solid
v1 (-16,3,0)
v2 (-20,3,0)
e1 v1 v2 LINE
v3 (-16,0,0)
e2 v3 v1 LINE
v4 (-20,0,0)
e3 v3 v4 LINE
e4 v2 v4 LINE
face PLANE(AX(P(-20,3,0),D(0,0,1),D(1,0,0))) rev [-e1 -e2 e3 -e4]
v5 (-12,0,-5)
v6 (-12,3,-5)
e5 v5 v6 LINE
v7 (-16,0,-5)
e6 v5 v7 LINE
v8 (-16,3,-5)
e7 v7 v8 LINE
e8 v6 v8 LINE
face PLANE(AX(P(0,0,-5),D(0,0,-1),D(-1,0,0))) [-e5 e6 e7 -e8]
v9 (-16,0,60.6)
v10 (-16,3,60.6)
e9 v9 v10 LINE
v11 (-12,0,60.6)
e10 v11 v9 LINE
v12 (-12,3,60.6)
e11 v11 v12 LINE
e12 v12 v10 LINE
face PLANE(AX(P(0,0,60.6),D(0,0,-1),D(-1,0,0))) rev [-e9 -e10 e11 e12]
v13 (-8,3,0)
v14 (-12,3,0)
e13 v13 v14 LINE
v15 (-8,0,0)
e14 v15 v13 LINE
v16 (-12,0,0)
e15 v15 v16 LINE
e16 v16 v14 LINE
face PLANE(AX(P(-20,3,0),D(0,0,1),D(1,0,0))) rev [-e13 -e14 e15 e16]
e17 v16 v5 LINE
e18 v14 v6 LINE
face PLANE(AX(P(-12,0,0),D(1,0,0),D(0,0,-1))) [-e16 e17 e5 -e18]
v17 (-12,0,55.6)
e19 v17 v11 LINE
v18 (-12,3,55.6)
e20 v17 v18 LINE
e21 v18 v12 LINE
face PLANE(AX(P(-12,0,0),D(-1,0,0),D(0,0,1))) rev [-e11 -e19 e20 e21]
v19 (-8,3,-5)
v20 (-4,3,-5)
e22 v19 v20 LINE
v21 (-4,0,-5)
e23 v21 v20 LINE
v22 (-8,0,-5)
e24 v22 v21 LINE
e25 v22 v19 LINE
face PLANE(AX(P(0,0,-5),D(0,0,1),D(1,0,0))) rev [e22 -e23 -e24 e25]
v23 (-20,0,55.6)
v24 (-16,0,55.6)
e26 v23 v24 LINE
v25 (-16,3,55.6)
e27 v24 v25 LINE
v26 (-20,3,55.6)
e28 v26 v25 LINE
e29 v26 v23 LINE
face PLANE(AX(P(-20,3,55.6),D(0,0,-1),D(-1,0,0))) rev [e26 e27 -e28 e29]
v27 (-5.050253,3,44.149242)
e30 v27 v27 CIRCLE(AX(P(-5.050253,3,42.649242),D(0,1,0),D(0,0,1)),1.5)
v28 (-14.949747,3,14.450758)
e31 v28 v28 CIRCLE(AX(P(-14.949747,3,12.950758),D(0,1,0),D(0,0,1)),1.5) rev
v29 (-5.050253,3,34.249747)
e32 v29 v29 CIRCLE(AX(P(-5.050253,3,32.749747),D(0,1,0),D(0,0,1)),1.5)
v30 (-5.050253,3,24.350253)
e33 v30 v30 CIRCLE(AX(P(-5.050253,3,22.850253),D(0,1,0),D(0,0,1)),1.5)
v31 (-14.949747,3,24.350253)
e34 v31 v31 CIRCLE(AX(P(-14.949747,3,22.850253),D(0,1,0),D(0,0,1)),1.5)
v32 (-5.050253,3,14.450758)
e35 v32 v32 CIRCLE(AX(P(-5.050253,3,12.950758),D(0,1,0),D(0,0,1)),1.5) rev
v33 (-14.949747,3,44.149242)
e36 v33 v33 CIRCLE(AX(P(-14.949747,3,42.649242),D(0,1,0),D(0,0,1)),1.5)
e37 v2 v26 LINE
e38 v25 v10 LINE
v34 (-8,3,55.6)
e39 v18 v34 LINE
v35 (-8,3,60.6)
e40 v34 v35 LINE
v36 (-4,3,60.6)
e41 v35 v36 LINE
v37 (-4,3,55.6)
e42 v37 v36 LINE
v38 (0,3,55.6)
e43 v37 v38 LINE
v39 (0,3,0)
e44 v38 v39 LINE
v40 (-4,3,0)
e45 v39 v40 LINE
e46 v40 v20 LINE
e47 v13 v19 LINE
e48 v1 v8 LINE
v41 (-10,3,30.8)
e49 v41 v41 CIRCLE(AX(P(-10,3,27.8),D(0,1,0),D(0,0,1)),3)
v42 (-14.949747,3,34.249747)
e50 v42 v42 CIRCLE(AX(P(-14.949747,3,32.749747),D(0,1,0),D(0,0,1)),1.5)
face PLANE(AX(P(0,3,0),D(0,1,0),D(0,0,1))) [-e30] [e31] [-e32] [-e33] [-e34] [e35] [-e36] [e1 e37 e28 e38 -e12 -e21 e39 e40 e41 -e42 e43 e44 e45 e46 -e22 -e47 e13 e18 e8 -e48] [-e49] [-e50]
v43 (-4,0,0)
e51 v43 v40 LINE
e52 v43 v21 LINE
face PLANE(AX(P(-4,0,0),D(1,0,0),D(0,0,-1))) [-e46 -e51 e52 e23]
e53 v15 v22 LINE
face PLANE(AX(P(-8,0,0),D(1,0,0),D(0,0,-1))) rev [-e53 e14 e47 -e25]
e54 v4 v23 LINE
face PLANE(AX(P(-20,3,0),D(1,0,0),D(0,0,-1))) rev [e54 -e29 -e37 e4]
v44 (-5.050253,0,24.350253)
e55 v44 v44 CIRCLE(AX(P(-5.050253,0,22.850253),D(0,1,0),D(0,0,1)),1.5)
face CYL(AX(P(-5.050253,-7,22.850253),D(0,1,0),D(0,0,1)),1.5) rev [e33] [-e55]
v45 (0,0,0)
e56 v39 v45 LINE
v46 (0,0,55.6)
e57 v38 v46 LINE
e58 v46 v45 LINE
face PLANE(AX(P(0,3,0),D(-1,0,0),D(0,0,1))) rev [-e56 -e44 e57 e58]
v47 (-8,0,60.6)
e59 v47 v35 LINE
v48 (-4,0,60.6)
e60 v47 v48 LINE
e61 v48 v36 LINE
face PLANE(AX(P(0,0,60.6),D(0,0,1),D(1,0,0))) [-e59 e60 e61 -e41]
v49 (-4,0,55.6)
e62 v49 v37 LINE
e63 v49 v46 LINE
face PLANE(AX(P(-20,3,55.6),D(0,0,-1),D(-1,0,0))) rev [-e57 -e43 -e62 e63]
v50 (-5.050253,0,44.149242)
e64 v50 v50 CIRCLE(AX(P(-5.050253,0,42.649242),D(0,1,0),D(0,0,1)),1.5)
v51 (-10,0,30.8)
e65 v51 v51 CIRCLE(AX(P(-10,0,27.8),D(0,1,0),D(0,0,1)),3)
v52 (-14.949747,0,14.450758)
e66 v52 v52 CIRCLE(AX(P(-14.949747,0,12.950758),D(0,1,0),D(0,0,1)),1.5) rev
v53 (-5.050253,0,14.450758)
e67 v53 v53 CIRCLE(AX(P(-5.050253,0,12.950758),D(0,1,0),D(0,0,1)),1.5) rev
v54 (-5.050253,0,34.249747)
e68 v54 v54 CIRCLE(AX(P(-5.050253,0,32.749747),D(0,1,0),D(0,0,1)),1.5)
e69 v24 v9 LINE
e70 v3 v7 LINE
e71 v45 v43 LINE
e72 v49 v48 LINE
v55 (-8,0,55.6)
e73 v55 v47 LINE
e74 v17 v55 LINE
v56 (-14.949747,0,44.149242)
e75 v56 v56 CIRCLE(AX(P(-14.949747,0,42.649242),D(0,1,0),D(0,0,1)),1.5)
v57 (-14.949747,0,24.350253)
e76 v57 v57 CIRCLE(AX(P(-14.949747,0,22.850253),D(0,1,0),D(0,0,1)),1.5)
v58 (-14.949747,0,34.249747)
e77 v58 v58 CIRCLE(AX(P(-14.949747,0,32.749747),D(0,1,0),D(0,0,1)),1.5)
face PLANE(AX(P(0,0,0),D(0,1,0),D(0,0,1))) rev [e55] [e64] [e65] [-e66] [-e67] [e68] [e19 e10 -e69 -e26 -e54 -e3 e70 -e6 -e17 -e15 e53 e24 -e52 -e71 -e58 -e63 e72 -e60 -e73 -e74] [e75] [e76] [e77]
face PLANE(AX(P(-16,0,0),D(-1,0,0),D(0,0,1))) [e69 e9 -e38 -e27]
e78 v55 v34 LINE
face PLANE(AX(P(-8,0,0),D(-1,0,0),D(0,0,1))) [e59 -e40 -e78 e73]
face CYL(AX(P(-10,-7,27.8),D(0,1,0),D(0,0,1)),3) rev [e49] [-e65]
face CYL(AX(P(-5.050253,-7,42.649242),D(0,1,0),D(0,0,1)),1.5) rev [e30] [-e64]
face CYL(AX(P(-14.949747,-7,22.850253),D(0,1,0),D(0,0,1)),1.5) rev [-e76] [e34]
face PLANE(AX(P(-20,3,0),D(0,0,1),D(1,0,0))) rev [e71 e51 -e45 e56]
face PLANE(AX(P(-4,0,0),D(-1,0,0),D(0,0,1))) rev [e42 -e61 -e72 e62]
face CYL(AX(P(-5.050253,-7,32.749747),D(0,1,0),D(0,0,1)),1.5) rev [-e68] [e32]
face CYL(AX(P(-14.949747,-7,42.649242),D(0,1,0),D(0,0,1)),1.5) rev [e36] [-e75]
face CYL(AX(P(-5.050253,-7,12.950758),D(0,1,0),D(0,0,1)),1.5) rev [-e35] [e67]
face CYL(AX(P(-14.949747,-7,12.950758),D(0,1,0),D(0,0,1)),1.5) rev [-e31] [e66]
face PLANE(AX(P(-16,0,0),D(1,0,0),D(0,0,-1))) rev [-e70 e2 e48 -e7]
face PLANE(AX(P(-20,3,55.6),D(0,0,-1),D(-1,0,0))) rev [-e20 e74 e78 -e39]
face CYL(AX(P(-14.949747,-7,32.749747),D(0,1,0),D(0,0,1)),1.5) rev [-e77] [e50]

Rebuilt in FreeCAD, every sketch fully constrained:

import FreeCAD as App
import Part
import Sketcher


def add_polygon(sketch, points):
    """Adds a closed chain of lines whose ends are joined by coincident constraints."""
    first, n = sketch.GeometryCount, len(points)
    for a, b in zip(points, points[1:] + points[:1]):
        sketch.addGeometry(Part.LineSegment(App.Vector(*a, 0), App.Vector(*b, 0)), False)
    for i in range(n):
        sketch.addConstraint(Sketcher.Constraint("Coincident", first + i, 2, first + (i + 1) % n, 1))

doc = App.newDocument("Part")
body = doc.addObject("PartDesign::Body", "Body")

# Sketch on XZ plane
sketch1 = body.newObject("Sketcher::SketchObject", "Sketch")
sketch1.AttachmentSupport = (doc.getObject("XZ_Plane"), [""])
sketch1.MapMode = "FlatFace"
add_polygon(sketch1, [(-20, 0), (-20, 56), (0, 56), (0, 0)])  # lines 0-3
sketch1.addConstraint(Sketcher.Constraint("Vertical", 0))
sketch1.addConstraint(Sketcher.Constraint("Horizontal", 1))
sketch1.addConstraint(Sketcher.Constraint("Vertical", 2))
sketch1.addConstraint(Sketcher.Constraint("Horizontal", 3))
sketch1.addConstraint(Sketcher.Constraint("Coincident", 2, 2, -1, 1))
sketch1.addConstraint(Sketcher.Constraint("DistanceX", 1, 1, 1, 2, 20.0))
sketch1.addConstraint(Sketcher.Constraint("DistanceY", 0, 1, 0, 2, 55.6))
pad1 = body.newObject("PartDesign::Pad", "Pad")
pad1.Profile = sketch1
pad1.Length = 3
pad1.Reversed = True

# Sketch on XZ plane
sketch2 = body.newObject("Sketcher::SketchObject", "Sketch001")
sketch2.AttachmentSupport = (doc.getObject("XZ_Plane"), [""])
sketch2.MapMode = "FlatFace"
sketch2.AttachmentOffset = App.Placement(App.Vector(0, 0, -3), App.Rotation())
add_polygon(sketch2, [(-16, -5), (-16, 0), (-12, 0), (-12, -5)])  # lines 0-3
add_polygon(sketch2, [(-8, -5), (-8, 0), (-4, 0), (-4, -5)])  # lines 4-7
add_polygon(sketch2, [(-16, 55.6), (-16, 60.6), (-12, 60.6), (-12, 55.6)])  # lines 8-11
add_polygon(sketch2, [(-8, 55.6), (-8, 60.6), (-4, 60.6), (-4, 55.6)])  # lines 12-15
sketch2.addConstraint(Sketcher.Constraint("Vertical", 0))
sketch2.addConstraint(Sketcher.Constraint("Horizontal", 1))
sketch2.addConstraint(Sketcher.Constraint("Vertical", 2))
sketch2.addConstraint(Sketcher.Constraint("Horizontal", 3))
sketch2.addConstraint(Sketcher.Constraint("Vertical", 4))
sketch2.addConstraint(Sketcher.Constraint("Horizontal", 5))
sketch2.addConstraint(Sketcher.Constraint("Vertical", 6))
sketch2.addConstraint(Sketcher.Constraint("Horizontal", 7))
sketch2.addConstraint(Sketcher.Constraint("Vertical", 8))
sketch2.addConstraint(Sketcher.Constraint("Horizontal", 9))
sketch2.addConstraint(Sketcher.Constraint("Vertical", 10))
sketch2.addConstraint(Sketcher.Constraint("Horizontal", 11))
sketch2.addConstraint(Sketcher.Constraint("Vertical", 12))
sketch2.addConstraint(Sketcher.Constraint("Horizontal", 13))
sketch2.addConstraint(Sketcher.Constraint("Vertical", 14))
sketch2.addConstraint(Sketcher.Constraint("Horizontal", 15))
sketch2.addConstraint(Sketcher.Constraint("PointOnObject", 0, 2, -1))
sketch2.addConstraint(Sketcher.Constraint("PointOnObject", 4, 2, -1))
sketch2.addConstraint(Sketcher.Constraint("Horizontal", 3, 2, 6, 2))
sketch2.addConstraint(Sketcher.Constraint("Horizontal", 9, 2, 12, 2))
sketch2.addConstraint(Sketcher.Constraint("Horizontal", 11, 2, 14, 2))
sketch2.addConstraint(Sketcher.Constraint("Vertical", 3, 2, 8, 2))
sketch2.addConstraint(Sketcher.Constraint("Vertical", 2, 2, 9, 2))
sketch2.addConstraint(Sketcher.Constraint("Vertical", 7, 2, 12, 2))
sketch2.addConstraint(Sketcher.Constraint("Vertical", 6, 2, 13, 2))
sketch2.addConstraint(Sketcher.Constraint("Equal", 3, 5))
sketch2.addConstraint(Sketcher.Constraint("Equal", 6, 8))
sketch2.addConstraint(Sketcher.Constraint("DistanceX", 1, 1, 1, 2, 4.0))
sketch2.addConstraint(Sketcher.Constraint("DistanceY", 0, 1, 0, 2, 5.0))
sketch2.addConstraint(Sketcher.Constraint("DistanceX", 0, 2, -1, 1, 16.0))
sketch2.addConstraint(Sketcher.Constraint("DistanceX", 4, 2, -1, 1, 8.0))
sketch2.addConstraint(Sketcher.Constraint("DistanceY", -1, 1, 8, 2, 60.6))
pad2 = body.newObject("PartDesign::Pad", "Pad001")
pad2.Profile = sketch2
pad2.Length = 3

# Sketch on XZ plane
sketch3 = body.newObject("Sketcher::SketchObject", "Sketch002")
sketch3.AttachmentSupport = (doc.getObject("XZ_Plane"), [""])
sketch3.MapMode = "FlatFace"
sketch3.AttachmentOffset = App.Placement(App.Vector(0, 0, -3), App.Rotation())
sketch3.addGeometry(Part.Circle(App.Vector(-5.1, 22.9, 0), App.Vector(0, 0, 1), 1.5), False)
sketch3.addGeometry(Part.Circle(App.Vector(-10, 27.8, 0), App.Vector(0, 0, 1), 3), False)
sketch3.addGeometry(Part.Circle(App.Vector(-14.9, 32.7, 0), App.Vector(0, 0, 1), 1.5), False)
sketch3.addGeometry(Part.Circle(App.Vector(-5.1, 32.7, 0), App.Vector(0, 0, 1), 1.5), False)
sketch3.addGeometry(Part.Circle(App.Vector(-14.9, 22.9, 0), App.Vector(0, 0, 1), 1.5), False)
sketch3.addGeometry(Part.Circle(App.Vector(-14.9, 13, 0), App.Vector(0, 0, 1), 1.5), False)
sketch3.addGeometry(Part.Circle(App.Vector(-5.1, 13, 0), App.Vector(0, 0, 1), 1.5), False)
sketch3.addGeometry(Part.Circle(App.Vector(-14.9, 42.6, 0), App.Vector(0, 0, 1), 1.5), False)
sketch3.addGeometry(Part.Circle(App.Vector(-5.1, 42.6, 0), App.Vector(0, 0, 1), 1.5), False)
sketch3.addConstraint(Sketcher.Constraint("Equal", 0, 2))
sketch3.addConstraint(Sketcher.Constraint("Equal", 2, 3))
sketch3.addConstraint(Sketcher.Constraint("Equal", 3, 4))
sketch3.addConstraint(Sketcher.Constraint("Equal", 4, 5))
sketch3.addConstraint(Sketcher.Constraint("Equal", 5, 6))
sketch3.addConstraint(Sketcher.Constraint("Equal", 6, 7))
sketch3.addConstraint(Sketcher.Constraint("Equal", 7, 8))
sketch3.addConstraint(Sketcher.Constraint("Horizontal", 2, 3, 3, 3))
sketch3.addConstraint(Sketcher.Constraint("Horizontal", 0, 3, 4, 3))
sketch3.addConstraint(Sketcher.Constraint("Horizontal", 5, 3, 6, 3))
sketch3.addConstraint(Sketcher.Constraint("Horizontal", 7, 3, 8, 3))
sketch3.addConstraint(Sketcher.Constraint("Vertical", 0, 3, 3, 3))
sketch3.addConstraint(Sketcher.Constraint("Vertical", 2, 3, 4, 3))
sketch3.addConstraint(Sketcher.Constraint("Vertical", 4, 3, 5, 3))
sketch3.addConstraint(Sketcher.Constraint("Vertical", 3, 3, 6, 3))
sketch3.addConstraint(Sketcher.Constraint("Vertical", 5, 3, 7, 3))
sketch3.addConstraint(Sketcher.Constraint("Vertical", 6, 3, 8, 3))
sketch3.addConstraint(Sketcher.Constraint("Diameter", 0, 3.0))
sketch3.addConstraint(Sketcher.Constraint("Diameter", 1, 6.0))
sketch3.addConstraint(Sketcher.Constraint("DistanceX", 1, 3, -1, 1, 10.0))
sketch3.addConstraint(Sketcher.Constraint("DistanceY", -1, 1, 1, 3, 27.8))
sketch3.addConstraint(Sketcher.Constraint("DistanceY", 5, 3, 2, 3, 19.79899))
sketch3.addConstraint(Sketcher.Constraint("DistanceY", 4, 3, 7, 3, 19.79899))
sketch3.addConstraint(Sketcher.Constraint("DistanceX", 0, 3, -1, 1, 5.050253))
sketch3.addConstraint(Sketcher.Constraint("DistanceY", -1, 1, 0, 3, 22.850253))
sketch3.addConstraint(Sketcher.Constraint("DistanceX", 2, 3, -1, 1, 14.949747))
sketch3.addConstraint(Sketcher.Constraint("DistanceY", -1, 1, 2, 3, 32.749747))
pocket1 = body.newObject("PartDesign::Pocket", "Pocket")
pocket1.Profile = sketch3
pocket1.Length = 10
pocket1.Reversed = True

doc.recompute()
